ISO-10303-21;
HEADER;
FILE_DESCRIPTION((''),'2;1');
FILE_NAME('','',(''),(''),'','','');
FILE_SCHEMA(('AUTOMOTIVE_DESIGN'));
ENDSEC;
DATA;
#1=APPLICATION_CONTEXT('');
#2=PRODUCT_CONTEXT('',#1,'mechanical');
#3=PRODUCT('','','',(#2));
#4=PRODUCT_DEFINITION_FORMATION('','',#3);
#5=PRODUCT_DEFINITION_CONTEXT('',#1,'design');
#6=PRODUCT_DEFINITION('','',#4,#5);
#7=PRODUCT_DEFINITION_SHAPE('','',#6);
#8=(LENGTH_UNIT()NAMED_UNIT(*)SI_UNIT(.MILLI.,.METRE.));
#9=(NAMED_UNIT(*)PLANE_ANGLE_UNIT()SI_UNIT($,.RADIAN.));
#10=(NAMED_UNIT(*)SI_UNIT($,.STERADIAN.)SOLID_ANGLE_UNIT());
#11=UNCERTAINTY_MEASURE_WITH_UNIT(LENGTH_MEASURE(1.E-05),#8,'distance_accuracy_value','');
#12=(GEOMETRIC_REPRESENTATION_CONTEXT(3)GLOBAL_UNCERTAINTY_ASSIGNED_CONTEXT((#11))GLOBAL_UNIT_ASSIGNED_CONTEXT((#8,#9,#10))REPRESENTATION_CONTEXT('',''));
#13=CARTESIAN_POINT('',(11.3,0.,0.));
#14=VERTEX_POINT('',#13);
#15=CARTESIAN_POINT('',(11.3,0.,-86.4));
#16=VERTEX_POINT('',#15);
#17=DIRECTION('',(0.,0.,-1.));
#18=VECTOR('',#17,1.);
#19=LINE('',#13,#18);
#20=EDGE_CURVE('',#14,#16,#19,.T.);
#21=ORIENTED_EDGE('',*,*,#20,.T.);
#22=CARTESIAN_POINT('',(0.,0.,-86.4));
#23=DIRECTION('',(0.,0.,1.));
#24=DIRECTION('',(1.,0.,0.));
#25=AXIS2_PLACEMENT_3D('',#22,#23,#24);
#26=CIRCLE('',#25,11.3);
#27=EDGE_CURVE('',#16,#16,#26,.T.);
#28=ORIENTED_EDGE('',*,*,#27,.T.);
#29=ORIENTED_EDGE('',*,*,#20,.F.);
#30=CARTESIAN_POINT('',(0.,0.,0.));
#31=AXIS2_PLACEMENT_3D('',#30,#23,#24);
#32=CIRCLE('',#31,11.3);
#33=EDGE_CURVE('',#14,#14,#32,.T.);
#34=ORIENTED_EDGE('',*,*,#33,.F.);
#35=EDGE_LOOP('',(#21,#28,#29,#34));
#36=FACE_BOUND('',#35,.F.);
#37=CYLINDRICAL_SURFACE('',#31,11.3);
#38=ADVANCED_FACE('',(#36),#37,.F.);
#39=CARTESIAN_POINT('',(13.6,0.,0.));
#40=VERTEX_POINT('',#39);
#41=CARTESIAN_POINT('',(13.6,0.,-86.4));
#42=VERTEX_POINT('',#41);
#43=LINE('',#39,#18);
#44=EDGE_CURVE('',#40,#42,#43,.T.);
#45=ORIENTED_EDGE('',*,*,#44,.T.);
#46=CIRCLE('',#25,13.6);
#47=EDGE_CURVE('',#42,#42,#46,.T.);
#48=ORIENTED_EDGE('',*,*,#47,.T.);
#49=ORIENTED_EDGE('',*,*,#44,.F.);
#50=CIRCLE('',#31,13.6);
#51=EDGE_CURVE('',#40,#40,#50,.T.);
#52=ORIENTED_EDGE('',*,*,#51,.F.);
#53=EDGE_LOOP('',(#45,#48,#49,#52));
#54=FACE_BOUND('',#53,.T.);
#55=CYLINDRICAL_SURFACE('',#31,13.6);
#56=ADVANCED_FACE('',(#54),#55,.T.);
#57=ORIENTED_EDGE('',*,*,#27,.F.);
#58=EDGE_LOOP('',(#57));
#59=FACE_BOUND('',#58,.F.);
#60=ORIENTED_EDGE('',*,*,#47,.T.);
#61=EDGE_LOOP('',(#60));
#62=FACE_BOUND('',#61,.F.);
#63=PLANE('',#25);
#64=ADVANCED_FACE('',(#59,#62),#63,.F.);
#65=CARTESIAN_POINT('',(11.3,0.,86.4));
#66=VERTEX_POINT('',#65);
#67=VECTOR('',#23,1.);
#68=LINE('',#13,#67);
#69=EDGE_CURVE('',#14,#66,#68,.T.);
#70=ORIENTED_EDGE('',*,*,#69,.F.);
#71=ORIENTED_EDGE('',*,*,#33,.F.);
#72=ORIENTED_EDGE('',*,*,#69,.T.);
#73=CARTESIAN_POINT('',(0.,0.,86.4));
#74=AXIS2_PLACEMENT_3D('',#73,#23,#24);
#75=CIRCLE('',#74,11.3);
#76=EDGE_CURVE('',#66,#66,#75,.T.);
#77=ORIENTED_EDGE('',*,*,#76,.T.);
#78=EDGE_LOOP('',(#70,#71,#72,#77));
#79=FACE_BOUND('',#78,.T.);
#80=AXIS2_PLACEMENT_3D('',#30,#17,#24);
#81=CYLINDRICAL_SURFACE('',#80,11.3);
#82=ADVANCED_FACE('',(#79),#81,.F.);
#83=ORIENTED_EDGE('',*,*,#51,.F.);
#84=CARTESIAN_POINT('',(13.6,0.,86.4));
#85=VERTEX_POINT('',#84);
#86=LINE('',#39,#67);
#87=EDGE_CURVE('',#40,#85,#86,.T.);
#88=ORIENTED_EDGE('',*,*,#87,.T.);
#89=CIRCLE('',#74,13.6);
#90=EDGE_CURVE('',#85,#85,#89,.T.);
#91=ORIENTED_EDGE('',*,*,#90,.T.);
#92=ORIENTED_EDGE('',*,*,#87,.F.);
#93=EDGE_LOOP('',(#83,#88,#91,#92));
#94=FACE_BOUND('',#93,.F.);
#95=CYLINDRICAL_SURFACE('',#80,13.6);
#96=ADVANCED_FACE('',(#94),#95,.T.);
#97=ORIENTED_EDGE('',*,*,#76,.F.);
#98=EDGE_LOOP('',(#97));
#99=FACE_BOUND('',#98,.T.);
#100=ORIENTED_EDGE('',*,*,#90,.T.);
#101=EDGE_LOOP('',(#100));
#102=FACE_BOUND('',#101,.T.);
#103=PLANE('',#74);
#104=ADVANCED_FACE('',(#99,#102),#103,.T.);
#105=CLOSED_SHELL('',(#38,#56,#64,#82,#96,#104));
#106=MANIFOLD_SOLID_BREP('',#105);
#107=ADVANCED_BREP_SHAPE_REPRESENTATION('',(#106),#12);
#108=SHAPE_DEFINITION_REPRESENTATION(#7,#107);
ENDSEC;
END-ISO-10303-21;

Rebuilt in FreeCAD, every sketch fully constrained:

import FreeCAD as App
import Part
import Sketcher
from FreeCAD import Vector
Q = App.Units.Quantity

doc = App.newDocument("Part")
body = doc.addObject("PartDesign::Body", "Body")

# Sketch on XY plane
sketch1 = body.newObject("Sketcher::SketchObject", "Sketch")
sketch1.AttachmentSupport = (doc.getObject("XY_Plane"), [""])
sketch1.MapMode = "FlatFace"
sketch1.addGeometry([
    Part.Circle(Vector(0, 0, 0), Vector(0, 0, 1), 13.6),
    Part.Circle(Vector(0, 0, 0), Vector(0, 0, 1), 11.3),
], False)
sketch1.addConstraint([
    Sketcher.Constraint("Coincident", 0, 3, -1, 1),
    Sketcher.Constraint("Coincident", 1, 3, -1, 1),
    Sketcher.Constraint("Diameter", 0, Q("27.2 mm")),
    Sketcher.Constraint("Diameter", 1, Q("22.6 mm")),
])
pad1 = body.newObject("PartDesign::Pad", "Pad")
pad1.Profile = sketch1
pad1.Length = 172.8
pad1.Midplane = True

doc.recompute()
